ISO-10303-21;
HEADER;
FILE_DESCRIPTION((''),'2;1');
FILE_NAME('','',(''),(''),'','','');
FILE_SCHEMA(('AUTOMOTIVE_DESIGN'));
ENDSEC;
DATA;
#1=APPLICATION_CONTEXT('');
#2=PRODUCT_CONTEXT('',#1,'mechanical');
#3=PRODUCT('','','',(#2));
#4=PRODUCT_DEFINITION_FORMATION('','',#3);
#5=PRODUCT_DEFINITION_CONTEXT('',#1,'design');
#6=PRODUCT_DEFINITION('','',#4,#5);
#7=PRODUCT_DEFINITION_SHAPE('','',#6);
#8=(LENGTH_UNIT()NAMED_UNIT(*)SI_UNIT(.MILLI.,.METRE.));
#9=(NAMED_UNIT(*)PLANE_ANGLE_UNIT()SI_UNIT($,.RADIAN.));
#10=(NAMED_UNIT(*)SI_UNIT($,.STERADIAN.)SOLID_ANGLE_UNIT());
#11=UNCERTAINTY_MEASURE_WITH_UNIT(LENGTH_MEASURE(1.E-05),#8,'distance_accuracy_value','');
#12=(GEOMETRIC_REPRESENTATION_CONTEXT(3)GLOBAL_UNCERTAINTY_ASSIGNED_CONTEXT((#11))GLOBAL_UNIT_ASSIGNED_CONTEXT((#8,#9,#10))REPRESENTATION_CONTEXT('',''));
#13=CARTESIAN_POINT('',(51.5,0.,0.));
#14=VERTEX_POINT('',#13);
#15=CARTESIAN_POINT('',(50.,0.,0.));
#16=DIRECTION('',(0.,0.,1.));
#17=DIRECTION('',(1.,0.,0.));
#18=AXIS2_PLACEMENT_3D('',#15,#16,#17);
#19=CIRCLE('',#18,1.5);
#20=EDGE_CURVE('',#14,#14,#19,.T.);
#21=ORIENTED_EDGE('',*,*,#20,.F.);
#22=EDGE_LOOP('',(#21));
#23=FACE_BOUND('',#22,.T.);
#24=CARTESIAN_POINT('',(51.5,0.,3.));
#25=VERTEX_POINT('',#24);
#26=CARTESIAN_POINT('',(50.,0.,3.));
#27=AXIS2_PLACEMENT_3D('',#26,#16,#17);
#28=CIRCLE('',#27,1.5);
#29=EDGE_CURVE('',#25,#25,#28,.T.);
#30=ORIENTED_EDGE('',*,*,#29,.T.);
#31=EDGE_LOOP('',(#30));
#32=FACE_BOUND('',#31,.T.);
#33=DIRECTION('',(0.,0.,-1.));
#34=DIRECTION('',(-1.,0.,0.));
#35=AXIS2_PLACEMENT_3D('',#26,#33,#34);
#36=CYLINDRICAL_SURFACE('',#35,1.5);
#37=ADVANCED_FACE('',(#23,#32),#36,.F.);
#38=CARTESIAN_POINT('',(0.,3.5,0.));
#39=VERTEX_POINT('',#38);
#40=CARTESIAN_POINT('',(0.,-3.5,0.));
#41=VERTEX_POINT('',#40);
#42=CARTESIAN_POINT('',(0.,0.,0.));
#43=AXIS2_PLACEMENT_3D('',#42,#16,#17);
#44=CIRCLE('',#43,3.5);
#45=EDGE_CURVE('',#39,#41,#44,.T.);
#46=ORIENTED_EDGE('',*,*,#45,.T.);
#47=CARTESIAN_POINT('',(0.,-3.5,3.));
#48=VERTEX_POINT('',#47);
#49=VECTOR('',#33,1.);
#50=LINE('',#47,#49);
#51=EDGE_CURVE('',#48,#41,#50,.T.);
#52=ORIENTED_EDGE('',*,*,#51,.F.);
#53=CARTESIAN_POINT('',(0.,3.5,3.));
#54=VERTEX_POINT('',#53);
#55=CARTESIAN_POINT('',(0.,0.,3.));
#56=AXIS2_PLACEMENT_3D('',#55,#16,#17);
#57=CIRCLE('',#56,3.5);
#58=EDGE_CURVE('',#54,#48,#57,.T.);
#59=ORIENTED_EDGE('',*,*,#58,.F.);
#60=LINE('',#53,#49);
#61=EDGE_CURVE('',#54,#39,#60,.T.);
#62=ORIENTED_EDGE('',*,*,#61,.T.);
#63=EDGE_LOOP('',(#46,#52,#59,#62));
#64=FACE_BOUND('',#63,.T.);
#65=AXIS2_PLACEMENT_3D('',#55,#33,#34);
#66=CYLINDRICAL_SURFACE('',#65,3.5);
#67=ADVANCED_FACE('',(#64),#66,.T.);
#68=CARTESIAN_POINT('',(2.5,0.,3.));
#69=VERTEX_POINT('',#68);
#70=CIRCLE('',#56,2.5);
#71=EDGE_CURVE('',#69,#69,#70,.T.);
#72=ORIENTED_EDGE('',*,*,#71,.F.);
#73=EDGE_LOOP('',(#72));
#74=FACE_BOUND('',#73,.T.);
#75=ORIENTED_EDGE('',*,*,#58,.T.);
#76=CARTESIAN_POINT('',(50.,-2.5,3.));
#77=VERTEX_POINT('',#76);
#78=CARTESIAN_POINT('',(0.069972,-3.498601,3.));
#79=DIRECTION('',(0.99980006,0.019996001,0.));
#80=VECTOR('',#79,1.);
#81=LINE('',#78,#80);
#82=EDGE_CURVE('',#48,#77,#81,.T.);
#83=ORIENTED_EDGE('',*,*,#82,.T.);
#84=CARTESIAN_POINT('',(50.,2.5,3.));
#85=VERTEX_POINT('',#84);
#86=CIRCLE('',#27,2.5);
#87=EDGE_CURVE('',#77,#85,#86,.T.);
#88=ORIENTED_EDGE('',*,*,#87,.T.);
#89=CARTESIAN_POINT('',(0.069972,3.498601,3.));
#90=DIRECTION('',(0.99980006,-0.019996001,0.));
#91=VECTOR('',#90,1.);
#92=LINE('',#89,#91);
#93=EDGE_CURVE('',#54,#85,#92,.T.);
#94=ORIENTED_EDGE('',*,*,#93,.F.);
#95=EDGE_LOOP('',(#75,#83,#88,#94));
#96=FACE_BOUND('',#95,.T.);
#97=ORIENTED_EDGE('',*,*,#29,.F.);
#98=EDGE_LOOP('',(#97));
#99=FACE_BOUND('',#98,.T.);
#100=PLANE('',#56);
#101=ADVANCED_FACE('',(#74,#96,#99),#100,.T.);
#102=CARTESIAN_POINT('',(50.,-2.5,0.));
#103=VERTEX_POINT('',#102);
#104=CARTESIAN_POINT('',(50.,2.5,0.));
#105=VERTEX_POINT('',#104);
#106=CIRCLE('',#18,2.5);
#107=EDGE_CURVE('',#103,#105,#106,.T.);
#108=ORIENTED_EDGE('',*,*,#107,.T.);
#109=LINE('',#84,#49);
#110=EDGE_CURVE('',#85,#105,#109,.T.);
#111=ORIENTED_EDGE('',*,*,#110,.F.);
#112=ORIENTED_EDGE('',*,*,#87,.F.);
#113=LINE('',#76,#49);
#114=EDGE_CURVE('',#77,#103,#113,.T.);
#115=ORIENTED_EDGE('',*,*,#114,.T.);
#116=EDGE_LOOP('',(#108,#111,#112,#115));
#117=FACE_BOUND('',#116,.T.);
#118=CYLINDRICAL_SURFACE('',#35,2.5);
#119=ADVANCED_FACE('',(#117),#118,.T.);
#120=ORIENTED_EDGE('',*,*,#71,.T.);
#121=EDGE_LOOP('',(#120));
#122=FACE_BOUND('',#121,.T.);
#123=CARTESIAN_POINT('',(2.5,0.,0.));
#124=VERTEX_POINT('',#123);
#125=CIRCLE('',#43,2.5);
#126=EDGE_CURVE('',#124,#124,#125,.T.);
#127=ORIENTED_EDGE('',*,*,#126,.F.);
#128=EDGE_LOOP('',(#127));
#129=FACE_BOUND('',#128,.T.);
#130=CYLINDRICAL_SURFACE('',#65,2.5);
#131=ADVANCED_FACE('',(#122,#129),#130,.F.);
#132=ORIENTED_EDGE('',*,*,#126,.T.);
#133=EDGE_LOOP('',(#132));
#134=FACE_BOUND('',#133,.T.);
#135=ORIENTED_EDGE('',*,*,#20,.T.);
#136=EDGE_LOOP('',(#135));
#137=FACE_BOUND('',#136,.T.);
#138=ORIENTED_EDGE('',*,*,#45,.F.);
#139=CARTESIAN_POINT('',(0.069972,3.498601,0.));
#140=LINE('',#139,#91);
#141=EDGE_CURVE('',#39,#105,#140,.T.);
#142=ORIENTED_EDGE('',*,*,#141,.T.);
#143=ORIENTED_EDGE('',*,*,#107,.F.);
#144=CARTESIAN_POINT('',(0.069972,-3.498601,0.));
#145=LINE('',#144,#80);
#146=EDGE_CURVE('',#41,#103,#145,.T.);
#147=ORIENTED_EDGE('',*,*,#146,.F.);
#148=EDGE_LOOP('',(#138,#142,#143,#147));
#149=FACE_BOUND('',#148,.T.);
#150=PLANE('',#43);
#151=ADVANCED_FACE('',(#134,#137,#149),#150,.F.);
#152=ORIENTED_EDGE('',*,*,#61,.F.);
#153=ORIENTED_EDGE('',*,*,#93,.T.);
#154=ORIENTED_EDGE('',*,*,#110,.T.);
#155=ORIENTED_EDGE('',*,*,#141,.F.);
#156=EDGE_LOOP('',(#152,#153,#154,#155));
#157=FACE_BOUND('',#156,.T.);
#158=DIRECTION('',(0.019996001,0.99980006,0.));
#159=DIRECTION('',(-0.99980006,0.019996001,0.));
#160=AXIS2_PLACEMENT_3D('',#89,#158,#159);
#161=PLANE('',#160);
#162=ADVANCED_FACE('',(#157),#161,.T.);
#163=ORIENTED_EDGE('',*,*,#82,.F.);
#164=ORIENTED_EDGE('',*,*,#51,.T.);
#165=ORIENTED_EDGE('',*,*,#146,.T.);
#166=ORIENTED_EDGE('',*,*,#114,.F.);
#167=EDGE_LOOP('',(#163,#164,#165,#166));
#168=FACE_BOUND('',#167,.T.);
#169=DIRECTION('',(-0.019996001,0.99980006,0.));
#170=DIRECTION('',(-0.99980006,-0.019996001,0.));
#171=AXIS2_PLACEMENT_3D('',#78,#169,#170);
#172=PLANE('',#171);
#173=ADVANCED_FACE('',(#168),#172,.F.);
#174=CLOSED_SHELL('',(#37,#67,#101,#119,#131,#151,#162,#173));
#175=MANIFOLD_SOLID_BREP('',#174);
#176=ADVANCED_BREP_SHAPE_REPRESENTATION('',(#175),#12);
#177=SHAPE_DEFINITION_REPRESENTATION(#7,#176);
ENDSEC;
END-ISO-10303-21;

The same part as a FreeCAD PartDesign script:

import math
import FreeCAD as App
import Part
import Sketcher

V = App.Vector
Q = App.Units.Quantity

doc = App.newDocument("Part")
body = doc.addObject("PartDesign::Body", "Body")

# Sketch on XY plane
sketch1 = body.newObject("Sketcher::SketchObject", "Sketch")
sketch1.AttachmentSupport = (doc.getObject("XY_Plane"), [""])
sketch1.MapMode = "FlatFace"
sketch1.addGeometry([
    Part.LineSegment(V(0.14, 3.5, 0), V(0, 3.5, 0)),  # 0
    Part.ArcOfCircle(Part.Circle(V(0, 0, 0), V(0, 0, 1), 3.5), math.radians(90), math.radians(270)),  # 1
    Part.LineSegment(V(0, -3.5, 0), V(0.14, -3.5, 0)),  # 2
    Part.LineSegment(V(0.14, -3.5, 0), V(50, -2.5, 0)),  # 3
    Part.ArcOfCircle(Part.Circle(V(50, 0, 0), V(0, 0, 1), 2.5), math.radians(-90), math.radians(90)),  # 4
    Part.LineSegment(V(50, 2.5, 0), V(0.14, 3.5, 0)),  # 5
    Part.Circle(V(0, 0, 0), V(0, 0, 1), 2.5),  # 6
    Part.Circle(V(50, 0, 0), V(0, 0, 1), 1.5),  # 7
], False)
sketch1.addConstraint([
    Sketcher.Constraint("Coincident", 0, 2, 1, 1),
    Sketcher.Constraint("Coincident", 1, 2, 2, 1),
    Sketcher.Constraint("Coincident", 2, 2, 3, 1),
    Sketcher.Constraint("Coincident", 3, 2, 4, 1),
    Sketcher.Constraint("Coincident", 4, 2, 5, 1),
    Sketcher.Constraint("Coincident", 5, 2, 0, 1),
    Sketcher.Constraint("Coincident", 1, 3, -1, 1),
    Sketcher.Constraint("Coincident", 6, 3, -1, 1),
    Sketcher.Constraint("Coincident", 7, 3, 4, 3),
    Sketcher.Constraint("Equal", 4, 6),
    Sketcher.Constraint("Symmetric", 3, 2, 4, 2, -1),
    Sketcher.Constraint("Symmetric", 2, 2, 5, 2, -1),
    Sketcher.Constraint("PointOnObject", 0, 2, -2),
    Sketcher.Constraint("PointOnObject", 1, 2, -2),
    Sketcher.Constraint("Parallel", 2, 3),
    Sketcher.Constraint("Vertical", 7, 3, 3, 2),
    Sketcher.Constraint("Diameter", 6, Q("5 mm")),
    Sketcher.Constraint("Diameter", 7, Q("3 mm")),
    Sketcher.Constraint("Radius", 1, Q("3.5 mm")),
    Sketcher.Constraint("DistanceX", -1, 1, 4, 3, Q("50 mm")),
    Sketcher.Constraint("DistanceY", 2, 2, -1, 1, Q("3.497201 mm")),
])
pad1 = body.newObject("PartDesign::Pad", "Pad")
pad1.Profile = sketch1
pad1.Length = 3

doc.recompute()
